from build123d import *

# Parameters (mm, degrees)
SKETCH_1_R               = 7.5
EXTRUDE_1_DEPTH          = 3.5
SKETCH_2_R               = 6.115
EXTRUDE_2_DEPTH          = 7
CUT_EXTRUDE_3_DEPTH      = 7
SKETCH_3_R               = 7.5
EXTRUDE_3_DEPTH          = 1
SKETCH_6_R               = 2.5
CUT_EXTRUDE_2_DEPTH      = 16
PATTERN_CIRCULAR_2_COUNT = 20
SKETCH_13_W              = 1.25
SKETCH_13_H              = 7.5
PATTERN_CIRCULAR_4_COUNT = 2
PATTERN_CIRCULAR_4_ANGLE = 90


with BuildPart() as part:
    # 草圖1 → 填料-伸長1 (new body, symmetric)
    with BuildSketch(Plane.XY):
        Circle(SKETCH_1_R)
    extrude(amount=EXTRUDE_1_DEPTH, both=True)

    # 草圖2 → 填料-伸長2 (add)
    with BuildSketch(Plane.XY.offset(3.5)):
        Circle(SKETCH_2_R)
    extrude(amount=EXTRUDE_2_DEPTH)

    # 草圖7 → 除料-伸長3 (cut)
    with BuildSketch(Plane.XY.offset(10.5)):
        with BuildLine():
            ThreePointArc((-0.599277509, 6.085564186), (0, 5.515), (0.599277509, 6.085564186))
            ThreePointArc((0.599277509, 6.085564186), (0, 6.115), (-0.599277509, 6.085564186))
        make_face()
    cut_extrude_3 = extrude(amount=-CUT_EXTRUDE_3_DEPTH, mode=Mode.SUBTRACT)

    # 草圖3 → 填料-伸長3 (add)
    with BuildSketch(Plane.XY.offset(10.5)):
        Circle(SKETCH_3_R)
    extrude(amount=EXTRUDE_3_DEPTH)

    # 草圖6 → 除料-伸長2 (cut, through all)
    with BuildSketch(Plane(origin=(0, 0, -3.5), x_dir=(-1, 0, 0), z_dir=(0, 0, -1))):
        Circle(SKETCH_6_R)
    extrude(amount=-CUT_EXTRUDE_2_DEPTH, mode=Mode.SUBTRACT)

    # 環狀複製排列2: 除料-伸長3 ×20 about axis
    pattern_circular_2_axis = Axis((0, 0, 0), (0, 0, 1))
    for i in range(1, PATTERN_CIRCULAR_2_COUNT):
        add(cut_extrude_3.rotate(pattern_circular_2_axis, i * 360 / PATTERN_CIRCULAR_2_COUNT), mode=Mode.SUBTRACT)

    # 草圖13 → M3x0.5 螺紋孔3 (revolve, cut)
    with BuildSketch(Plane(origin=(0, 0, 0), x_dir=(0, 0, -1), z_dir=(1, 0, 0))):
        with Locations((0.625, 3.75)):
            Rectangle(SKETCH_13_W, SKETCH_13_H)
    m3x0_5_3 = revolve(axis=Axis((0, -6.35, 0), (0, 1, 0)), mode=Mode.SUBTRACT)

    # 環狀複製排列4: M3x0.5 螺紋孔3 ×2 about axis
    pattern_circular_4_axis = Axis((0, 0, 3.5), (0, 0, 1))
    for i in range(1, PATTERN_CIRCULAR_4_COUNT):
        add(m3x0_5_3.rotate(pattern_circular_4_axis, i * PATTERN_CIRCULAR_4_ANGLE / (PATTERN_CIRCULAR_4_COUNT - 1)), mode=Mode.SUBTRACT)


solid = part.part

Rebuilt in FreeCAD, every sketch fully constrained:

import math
import FreeCAD as App
import Part
import Sketcher
from FreeCAD import Vector


def add_polygon(sketch, points):
    """Adds a closed chain of lines whose ends are joined by coincident constraints."""
    first, n = sketch.GeometryCount, len(points)
    for a, b in zip(points, points[1:] + points[:1]):
        sketch.addGeometry(Part.LineSegment(App.Vector(*a, 0), App.Vector(*b, 0)), False)
    for i in range(n):
        sketch.addConstraint(Sketcher.Constraint("Coincident", first + i, 2, first + (i + 1) % n, 1))

doc = App.newDocument("Part")
params = doc.addObject("Spreadsheet::Sheet", "Params")
for row, (alias, value) in enumerate([
    ("sketch1_diameter", "15 mm"),
    ("pad1_length", "7 mm"),
    ("sketch2_diameter", "12.23 mm"),
    ("pad2_length", "7 mm"),
    ("sketch3_radius", "0.6 mm"),
    ("pocket1_length", "7 mm"),
    ("sketch4_diameter", "15 mm"),
    ("pad3_length", "1 mm"),
    ("sketch5_diameter", "5 mm"),
    ("sketch6_width", "7.5 mm"),
    ("sketch6_height", "1.25 mm"),
    ("groove_angle", "360 deg"),
], start=1):
    params.set(f"A{row}", alias)
    params.set(f"B{row}", "=" + value)
    params.setAlias(f"B{row}", alias)

body = doc.addObject("PartDesign::Body", "Body")

sketch1 = body.newObject("Sketcher::SketchObject", "Sketch")
sketch1.AttachmentSupport = (doc.getObject("XY_Plane"), [""])
sketch1.MapMode = "FlatFace"
sketch1.addGeometry(Part.Circle(Vector(0, 0, 0), Vector(0, 0, 1), 8), False)
sketch1.addConstraint([
    Sketcher.Constraint("Coincident", 0, 3, -1, 1),
    Sketcher.Constraint("Diameter", 0, 15.0),
])
sketch1.setExpression("Constraints[1]", "Params.sketch1_diameter")
pad1 = body.newObject("PartDesign::Pad", "Pad")
pad1.Profile = sketch1
pad1.setExpression("Length", "Params.pad1_length")
pad1.Midplane = True

sketch2 = body.newObject("Sketcher::SketchObject", "Sketch001")
sketch2.AttachmentSupport = (doc.getObject("XY_Plane"), [""])
sketch2.MapMode = "FlatFace"
sketch2.AttachmentOffset = App.Placement(Vector(0, 0, 3.5), App.Rotation())
sketch2.addGeometry(Part.Circle(Vector(0, 0, 0), Vector(0, 0, 1), 6), False)
sketch2.addConstraint([
    Sketcher.Constraint("Coincident", 0, 3, -1, 1),
    Sketcher.Constraint("Diameter", 0, 12.23),
])
sketch2.setExpression("Constraints[1]", "Params.sketch2_diameter")
pad2 = body.newObject("PartDesign::Pad", "Pad001")
pad2.Profile = sketch2
pad2.setExpression("Length", "Params.pad2_length")

sketch3 = body.newObject("Sketcher::SketchObject", "Sketch002")
sketch3.AttachmentSupport = (doc.getObject("XY_Plane"), [""])
sketch3.MapMode = "FlatFace"
sketch3.AttachmentOffset = App.Placement(Vector(0, 0, 10.5), App.Rotation())
sketch3.addGeometry([
    Part.ArcOfCircle(Part.Circle(Vector(0, 6.1, 0), Vector(0, 0, 1), 0.6), math.radians(-177), math.radians(-3)),
    Part.ArcOfCircle(Part.Circle(Vector(0, 0, 0), Vector(0, 0, 1), 6.1), math.radians(84.38), math.radians(95.62)),
], False)
sketch3.addConstraint([
    Sketcher.Constraint("Coincident", 0, 1, 1, 2),
    Sketcher.Constraint("Coincident", 1, 1, 0, 2),
    Sketcher.Constraint("Coincident", 1, 3, -1, 1),
    Sketcher.Constraint("PointOnObject", 0, 3, -2),
    Sketcher.Constraint("Radius", 0, 0.6),
    Sketcher.Constraint("Radius", 1, 6.115),
    Sketcher.Constraint("DistanceY", -1, 1, 0, 3, 6.115),
])
sketch3.setExpression("Constraints[4]", "Params.sketch3_radius")
pocket1 = body.newObject("PartDesign::Pocket", "Pocket")
pocket1.Profile = sketch3
pocket1.setExpression("Length", "Params.pocket1_length")

sketch4 = body.newObject("Sketcher::SketchObject", "Sketch003")
sketch4.AttachmentSupport = (doc.getObject("XY_Plane"), [""])
sketch4.MapMode = "FlatFace"
sketch4.AttachmentOffset = App.Placement(Vector(0, 0, 10.5), App.Rotation())
sketch4.addGeometry(Part.Circle(Vector(0, 0, 0), Vector(0, 0, 1), 8), False)
sketch4.addConstraint([
    Sketcher.Constraint("Coincident", 0, 3, -1, 1),
    Sketcher.Constraint("Diameter", 0, 15.0),
])
sketch4.setExpression("Constraints[1]", "Params.sketch4_diameter")
pad3 = body.newObject("PartDesign::Pad", "Pad002")
pad3.Profile = sketch4
pad3.setExpression("Length", "Params.pad3_length")

sketch5 = body.newObject("Sketcher::SketchObject", "Sketch004")
sketch5.AttachmentSupport = (doc.getObject("XY_Plane"), [""])
sketch5.MapMode = "FlatFace"
sketch5.AttachmentOffset = App.Placement(Vector(0, 0, -3.5), App.Rotation())
sketch5.addGeometry(Part.Circle(Vector(0, 0, 0), Vector(0, 0, 1), 2.5), False)
sketch5.addConstraint([
    Sketcher.Constraint("Coincident", 0, 3, -1, 1),
    Sketcher.Constraint("Diameter", 0, 5.0),
])
sketch5.setExpression("Constraints[1]", "Params.sketch5_diameter")
pocket2 = body.newObject("PartDesign::Pocket", "Pocket001")
pocket2.Profile = sketch5
pocket2.Type = "ThroughAll"
pocket2.Reversed = True
doc.recompute()

polarpattern = body.newObject("PartDesign::PolarPattern", "PolarPattern")
polarpattern.Originals = [pocket1]
polarpattern.Axis = (doc.getObject("Z_Axis"), [""])
polarpattern.Angle = 360
polarpattern.Occurrences = 20
body.Tip = polarpattern

sketch6 = body.newObject("Sketcher::SketchObject", "Sketch005")
sketch6.AttachmentSupport = (doc.getObject("YZ_Plane"), [""])
sketch6.MapMode = "FlatFace"
add_polygon(sketch6, [(7.5, 0), (0, 0), (0, -1.2), (7.5, -1.2)])
sketch6.addConstraint([
    Sketcher.Constraint("Horizontal", 0),
    Sketcher.Constraint("Vertical", 1),
    Sketcher.Constraint("Horizontal", 2),
    Sketcher.Constraint("Vertical", 3),
    Sketcher.Constraint("Coincident", 0, 2, -1, 1),
    Sketcher.Constraint("DistanceX", 0, 2, 0, 1, 7.5),
    Sketcher.Constraint("DistanceY", 1, 2, 1, 1, 1.25),
])
sketch6.setExpression("Constraints[9]", "Params.sketch6_width")
sketch6.setExpression("Constraints[10]", "Params.sketch6_height")
groove = body.newObject("PartDesign::Groove", "Groove")
groove.Profile = sketch6
groove.ReferenceAxis = (sketch6, ["H_Axis"])
groove.setExpression("Angle", "Params.groove_angle")
doc.recompute()

polarpattern2 = body.newObject("PartDesign::PolarPattern", "PolarPattern001")
polarpattern2.Originals = [groove]
polarpattern2.Axis = (doc.getObject("Z_Axis"), [""])
polarpattern2.Angle = 90
polarpattern2.Occurrences = 2
body.Tip = polarpattern2

doc.recompute()
